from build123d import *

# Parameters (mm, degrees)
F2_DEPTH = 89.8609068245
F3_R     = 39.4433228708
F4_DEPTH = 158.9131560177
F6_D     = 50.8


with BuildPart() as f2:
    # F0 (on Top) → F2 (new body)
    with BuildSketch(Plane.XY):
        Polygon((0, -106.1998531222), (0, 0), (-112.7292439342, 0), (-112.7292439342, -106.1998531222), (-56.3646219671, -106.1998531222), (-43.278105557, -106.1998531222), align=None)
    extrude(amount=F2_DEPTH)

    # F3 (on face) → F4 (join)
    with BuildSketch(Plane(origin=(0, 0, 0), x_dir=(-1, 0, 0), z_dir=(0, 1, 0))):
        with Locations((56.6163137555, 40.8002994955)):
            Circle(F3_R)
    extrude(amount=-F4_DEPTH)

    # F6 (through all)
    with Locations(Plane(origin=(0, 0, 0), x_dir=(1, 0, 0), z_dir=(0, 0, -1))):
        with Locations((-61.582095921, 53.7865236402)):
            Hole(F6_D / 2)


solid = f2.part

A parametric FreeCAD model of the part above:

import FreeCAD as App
import Part
import Sketcher

V = App.Vector
Q = App.Units.Quantity


def add_polygon(sketch, points):
    """Adds a closed chain of lines whose ends are joined by coincident constraints."""
    first, n = sketch.GeometryCount, len(points)
    for a, b in zip(points, points[1:] + points[:1]):
        sketch.addGeometry(Part.LineSegment(App.Vector(*a, 0), App.Vector(*b, 0)), False)
    for i in range(n):
        sketch.addConstraint(Sketcher.Constraint("Coincident", first + i, 2, first + (i + 1) % n, 1))

doc = App.newDocument("Part")
body = doc.addObject("PartDesign::Body", "Body")

# Sketch on XY plane
sketch1 = doc.addObject("Sketcher::SketchObject", "Sketch")
body.addObject(sketch1)
sketch1.AttachmentSupport = (doc.XY_Plane, [""])
sketch1.MapMode = "FlatFace"
add_polygon(sketch1, [(0, -106.199853), (0, 0), (-112.729244, 0), (-112.729244, -106.199853)])  # lines 0-3
sketch1.addConstraint([
    Sketcher.Constraint("Vertical", 0),
    Sketcher.Constraint("Horizontal", 1),
    Sketcher.Constraint("Vertical", 2),
    Sketcher.Constraint("Horizontal", 3),
    Sketcher.Constraint("Coincident", 0, 2, -1, 1),
    Sketcher.Constraint("DistanceX", 1, 2, 1, 1, 112.729244),
    Sketcher.Constraint("DistanceY", 0, 1, 0, 2, 106.199853),
])
pad1 = doc.addObject("PartDesign::Pad", "Pad")
body.addObject(pad1)
pad1.Profile = sketch1
pad1.Length = 89.860907

# Sketch on XZ plane
sketch2 = doc.addObject("Sketcher::SketchObject", "Sketch001")
body.addObject(sketch2)
sketch2.AttachmentSupport = (doc.XZ_Plane, [""])
sketch2.MapMode = "FlatFace"
sketch2.addGeometry(Part.Circle(V(-56.616314, 40.800299, 0), V(0, 0, 1), 39.443323), False)
sketch2.addConstraint([
    Sketcher.Constraint("Diameter", 0, 78.886646),
    Sketcher.Constraint("DistanceY", -1, 1, 0, 3, 40.800299),
    Sketcher.Constraint("DistanceX", 0, 3, -1, 1, 56.616314),
])
pad2 = doc.addObject("PartDesign::Pad", "Pad001")
body.addObject(pad2)
pad2.Profile = sketch2
pad2.Length = 158.913156

# Sketch on XY plane
sketch3 = doc.addObject("Sketcher::SketchObject", "Sketch002")
body.addObject(sketch3)
sketch3.AttachmentSupport = (doc.XY_Plane, [""])
sketch3.MapMode = "FlatFace"
sketch3.addGeometry(Part.Circle(V(-61.582096, -53.786524, 0), V(0, 0, 1), 25.4), False)
sketch3.addConstraint([
    Sketcher.Constraint("Diameter", 0, Q("2 in")),
    Sketcher.Constraint("DistanceX", 0, 3, -1, 1, 61.582096),
    Sketcher.Constraint("DistanceY", 0, 3, -1, 1, 53.786524),
])
doc.recompute()
hole = doc.addObject("PartDesign::Hole", "Hole")
body.addObject(hole)
hole.Profile = sketch3
hole.ThreadType = "None"
hole.Diameter = Q("2 in")
hole.DepthType = "ThroughAll"
hole.Reversed = True

doc.recompute()
